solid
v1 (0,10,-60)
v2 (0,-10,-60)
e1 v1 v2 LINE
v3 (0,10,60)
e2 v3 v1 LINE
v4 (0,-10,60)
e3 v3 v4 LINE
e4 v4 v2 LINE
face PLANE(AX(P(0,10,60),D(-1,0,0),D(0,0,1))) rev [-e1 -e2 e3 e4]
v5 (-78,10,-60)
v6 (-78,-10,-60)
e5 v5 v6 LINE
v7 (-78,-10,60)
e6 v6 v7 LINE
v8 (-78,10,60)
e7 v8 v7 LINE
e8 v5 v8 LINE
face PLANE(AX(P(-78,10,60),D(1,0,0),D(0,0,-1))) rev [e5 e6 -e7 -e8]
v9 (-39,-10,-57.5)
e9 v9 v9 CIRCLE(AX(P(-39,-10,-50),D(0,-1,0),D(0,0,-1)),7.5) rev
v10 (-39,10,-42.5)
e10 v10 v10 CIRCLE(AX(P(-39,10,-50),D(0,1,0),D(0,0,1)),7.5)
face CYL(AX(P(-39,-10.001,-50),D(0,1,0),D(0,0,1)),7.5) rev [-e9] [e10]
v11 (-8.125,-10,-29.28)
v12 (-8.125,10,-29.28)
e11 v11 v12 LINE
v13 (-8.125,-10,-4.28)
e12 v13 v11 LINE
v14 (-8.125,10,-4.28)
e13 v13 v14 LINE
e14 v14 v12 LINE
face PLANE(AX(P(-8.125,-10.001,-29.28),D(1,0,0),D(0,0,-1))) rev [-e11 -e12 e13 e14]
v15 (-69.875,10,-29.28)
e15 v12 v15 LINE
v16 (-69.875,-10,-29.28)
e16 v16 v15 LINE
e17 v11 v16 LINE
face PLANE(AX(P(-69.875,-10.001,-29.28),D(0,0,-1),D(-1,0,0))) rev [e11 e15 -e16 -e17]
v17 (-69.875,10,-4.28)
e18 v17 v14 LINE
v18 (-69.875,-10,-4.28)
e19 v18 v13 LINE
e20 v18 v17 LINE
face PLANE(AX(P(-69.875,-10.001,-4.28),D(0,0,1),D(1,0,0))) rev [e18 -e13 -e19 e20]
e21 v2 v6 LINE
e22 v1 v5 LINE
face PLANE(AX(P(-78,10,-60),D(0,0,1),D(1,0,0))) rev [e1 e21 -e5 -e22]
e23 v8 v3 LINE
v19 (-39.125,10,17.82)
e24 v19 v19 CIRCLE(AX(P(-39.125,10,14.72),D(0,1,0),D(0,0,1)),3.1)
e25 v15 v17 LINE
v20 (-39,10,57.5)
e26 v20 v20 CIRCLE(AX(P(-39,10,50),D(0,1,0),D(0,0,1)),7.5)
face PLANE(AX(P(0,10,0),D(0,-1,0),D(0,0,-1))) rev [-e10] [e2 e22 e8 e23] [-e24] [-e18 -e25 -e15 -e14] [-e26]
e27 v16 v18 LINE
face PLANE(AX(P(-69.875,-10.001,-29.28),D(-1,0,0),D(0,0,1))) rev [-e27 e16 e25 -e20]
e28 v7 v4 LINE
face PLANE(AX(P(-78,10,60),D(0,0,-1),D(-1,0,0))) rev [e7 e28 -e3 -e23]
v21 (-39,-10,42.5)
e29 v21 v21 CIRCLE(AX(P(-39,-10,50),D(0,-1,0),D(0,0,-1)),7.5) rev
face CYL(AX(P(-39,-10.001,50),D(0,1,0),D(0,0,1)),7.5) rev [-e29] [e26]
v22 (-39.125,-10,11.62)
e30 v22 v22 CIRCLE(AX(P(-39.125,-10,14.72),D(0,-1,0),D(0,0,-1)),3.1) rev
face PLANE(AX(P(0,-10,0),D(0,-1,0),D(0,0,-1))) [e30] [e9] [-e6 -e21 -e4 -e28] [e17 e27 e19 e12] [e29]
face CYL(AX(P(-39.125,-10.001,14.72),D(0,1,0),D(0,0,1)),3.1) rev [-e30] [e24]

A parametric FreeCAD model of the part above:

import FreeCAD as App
import Part
import Sketcher


def add_polygon(sketch, points):
    """Adds a closed chain of lines whose ends are joined by coincident constraints."""
    first, n = sketch.GeometryCount, len(points)
    for a, b in zip(points, points[1:] + points[:1]):
        sketch.addGeometry(Part.LineSegment(App.Vector(*a, 0), App.Vector(*b, 0)), False)
    for i in range(n):
        sketch.addConstraint(Sketcher.Constraint("Coincident", first + i, 2, first + (i + 1) % n, 1))

doc = App.newDocument("Part")
body = doc.addObject("PartDesign::Body", "Body")

sketch1 = body.newObject("Sketcher::SketchObject", "Sketch")
sketch1.AttachmentSupport = (doc.getObject("XZ_Plane"), [""])
sketch1.MapMode = "FlatFace"
add_polygon(sketch1, [(-78, -60), (-78, 60), (0, 60), (0, -60)])
sketch1.addConstraint([
    Sketcher.Constraint("Vertical", 0),
    Sketcher.Constraint("Horizontal", 1),
    Sketcher.Constraint("Vertical", 2),
    Sketcher.Constraint("Horizontal", 3),
    Sketcher.Constraint("Symmetric", 1, 2, 2, 2, -1, 1),
    Sketcher.Constraint("DistanceX", 1, 1, 1, 2, 78.0),
    Sketcher.Constraint("DistanceY", 0, 1, 0, 2, 120.0),
])
pad1 = body.newObject("PartDesign::Pad", "Pad")
pad1.Profile = sketch1
pad1.Length = 20
pad1.Midplane = True

sketch2 = body.newObject("Sketcher::SketchObject", "Sketch001")
sketch2.AttachmentSupport = (doc.getObject("XZ_Plane"), [""])
sketch2.MapMode = "FlatFace"
sketch2.AttachmentOffset = App.Placement(App.Vector(0, 0, -10), App.Rotation())
add_polygon(sketch2, [(-69.875, -29.28), (-69.875, -4.28), (-8.125, -4.28), (-8.125, -29.28)])
sketch2.addConstraint([
    Sketcher.Constraint("Vertical", 0),
    Sketcher.Constraint("Horizontal", 1),
    Sketcher.Constraint("Vertical", 2),
    Sketcher.Constraint("Horizontal", 3),
    Sketcher.Constraint("DistanceY", 0, 1, 0, 2, 25.0),
    Sketcher.Constraint("DistanceX", 1, 1, 1, 2, 61.75),
    Sketcher.Constraint("DistanceY", 0, 2, -1, 1, 4.28),
    Sketcher.Constraint("DistanceX", 0, 2, -1, 1, 69.875),
])
pocket1 = body.newObject("PartDesign::Pocket", "Pocket")
pocket1.Profile = sketch2
pocket1.Type = "UpToFirst"
pocket1.Reversed = True

sketch3 = body.newObject("Sketcher::SketchObject", "Sketch002")
sketch3.AttachmentSupport = (doc.getObject("XZ_Plane"), [""])
sketch3.MapMode = "FlatFace"
sketch3.AttachmentOffset = App.Placement(App.Vector(0, 0, -10), App.Rotation())
sketch3.addGeometry(Part.Circle(App.Vector(-39, -50, 0), App.Vector(0, 0, 1), 7.5), False)
sketch3.addConstraint([
    Sketcher.Constraint("Diameter", 0, 15.0),
    Sketcher.Constraint("DistanceX", 0, 3, -1, 1, 39.0),
    Sketcher.Constraint("DistanceY", 0, 3, -1, 1, 50.0),
])
pocket2 = body.newObject("PartDesign::Pocket", "Pocket001")
pocket2.Profile = sketch3
pocket2.Type = "UpToFirst"
pocket2.Reversed = True

sketch4 = body.newObject("Sketcher::SketchObject", "Sketch003")
sketch4.AttachmentSupport = (doc.getObject("XZ_Plane"), [""])
sketch4.MapMode = "FlatFace"
sketch4.AttachmentOffset = App.Placement(App.Vector(0, 0, -10), App.Rotation())
sketch4.addGeometry(Part.Circle(App.Vector(-39, 50, 0), App.Vector(0, 0, 1), 7.5), False)
sketch4.addConstraint([
    Sketcher.Constraint("Diameter", 0, 15.0),
    Sketcher.Constraint("DistanceX", 0, 3, -1, 1, 39.0),
    Sketcher.Constraint("DistanceY", -1, 1, 0, 3, 50.0),
])
pocket3 = body.newObject("PartDesign::Pocket", "Pocket002")
pocket3.Profile = sketch4
pocket3.Type = "UpToFirst"
pocket3.Reversed = True

sketch5 = body.newObject("Sketcher::SketchObject", "Sketch004")
sketch5.AttachmentSupport = (doc.getObject("XZ_Plane"), [""])
sketch5.MapMode = "FlatFace"
sketch5.AttachmentOffset = App.Placement(App.Vector(0, 0, -10), App.Rotation())
sketch5.addGeometry(Part.Circle(App.Vector(-39.125, 14.72, 0), App.Vector(0, 0, 1), 3.1), False)
sketch5.addConstraint([
    Sketcher.Constraint("Diameter", 0, 6.2),
    Sketcher.Constraint("DistanceY", -1, 1, 0, 3, 14.72),
    Sketcher.Constraint("DistanceX", 0, 3, -1, 1, 39.125),
])
pocket4 = body.newObject("PartDesign::Pocket", "Pocket003")
pocket4.Profile = sketch5
pocket4.Type = "UpToFirst"
pocket4.Reversed = True

doc.recompute()
